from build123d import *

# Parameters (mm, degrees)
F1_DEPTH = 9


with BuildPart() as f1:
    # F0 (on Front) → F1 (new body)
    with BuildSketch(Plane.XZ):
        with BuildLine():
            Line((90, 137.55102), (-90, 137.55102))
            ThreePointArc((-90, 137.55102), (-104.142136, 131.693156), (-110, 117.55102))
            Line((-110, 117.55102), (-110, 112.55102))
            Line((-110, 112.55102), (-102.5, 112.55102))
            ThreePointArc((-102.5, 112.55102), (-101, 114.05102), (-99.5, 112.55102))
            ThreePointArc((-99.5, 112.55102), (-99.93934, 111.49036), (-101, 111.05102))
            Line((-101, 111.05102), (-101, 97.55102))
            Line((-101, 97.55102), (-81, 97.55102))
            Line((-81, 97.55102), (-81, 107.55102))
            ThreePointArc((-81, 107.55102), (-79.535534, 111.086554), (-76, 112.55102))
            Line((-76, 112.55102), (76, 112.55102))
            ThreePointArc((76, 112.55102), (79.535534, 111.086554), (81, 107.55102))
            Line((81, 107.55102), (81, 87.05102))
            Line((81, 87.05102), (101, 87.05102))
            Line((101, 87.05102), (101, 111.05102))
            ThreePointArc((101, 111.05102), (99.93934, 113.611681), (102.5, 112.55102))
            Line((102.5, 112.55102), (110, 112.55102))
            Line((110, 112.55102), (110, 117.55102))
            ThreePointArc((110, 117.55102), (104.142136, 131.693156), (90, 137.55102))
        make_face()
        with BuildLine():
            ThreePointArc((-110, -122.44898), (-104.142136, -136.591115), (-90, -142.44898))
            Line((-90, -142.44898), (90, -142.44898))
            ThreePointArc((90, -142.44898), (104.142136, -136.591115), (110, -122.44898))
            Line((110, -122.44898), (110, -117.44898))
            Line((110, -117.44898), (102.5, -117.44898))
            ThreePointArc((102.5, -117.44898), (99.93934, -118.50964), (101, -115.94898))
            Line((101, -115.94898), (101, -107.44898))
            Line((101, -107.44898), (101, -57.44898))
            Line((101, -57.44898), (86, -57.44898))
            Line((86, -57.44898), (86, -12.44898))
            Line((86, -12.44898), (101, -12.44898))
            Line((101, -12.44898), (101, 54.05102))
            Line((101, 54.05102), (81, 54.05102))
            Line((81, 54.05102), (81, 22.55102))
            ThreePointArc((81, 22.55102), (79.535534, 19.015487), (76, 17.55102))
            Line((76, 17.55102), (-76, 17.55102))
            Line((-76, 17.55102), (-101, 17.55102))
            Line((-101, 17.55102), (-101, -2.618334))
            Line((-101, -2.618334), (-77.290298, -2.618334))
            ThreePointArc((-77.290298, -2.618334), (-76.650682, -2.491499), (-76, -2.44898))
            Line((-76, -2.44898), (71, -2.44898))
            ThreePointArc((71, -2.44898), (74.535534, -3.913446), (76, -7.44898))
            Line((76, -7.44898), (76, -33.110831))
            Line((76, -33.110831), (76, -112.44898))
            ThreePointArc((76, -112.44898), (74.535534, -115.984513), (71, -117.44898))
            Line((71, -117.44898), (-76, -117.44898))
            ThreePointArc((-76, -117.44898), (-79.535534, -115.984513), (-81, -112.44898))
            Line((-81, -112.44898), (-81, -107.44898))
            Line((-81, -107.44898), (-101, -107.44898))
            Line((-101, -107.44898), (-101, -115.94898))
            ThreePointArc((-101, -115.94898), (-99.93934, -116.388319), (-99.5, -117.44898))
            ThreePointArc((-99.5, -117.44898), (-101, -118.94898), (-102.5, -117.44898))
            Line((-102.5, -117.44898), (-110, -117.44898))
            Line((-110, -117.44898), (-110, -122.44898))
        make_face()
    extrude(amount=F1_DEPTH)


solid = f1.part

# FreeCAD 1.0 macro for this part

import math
import FreeCAD as App
import Part
import Sketcher
from FreeCAD import Vector
Q = App.Units.Quantity

doc = App.newDocument("Part")
body = doc.addObject("PartDesign::Body", "Body")
body.AllowCompound = True

sketch1 = doc.addObject("Sketcher::SketchObject", "Sketch")
body.addObject(sketch1)
sketch1.AttachmentSupport = (doc.XZ_Plane, [""])
sketch1.MapMode = "FlatFace"
sketch1.addGeometry([
    Part.LineSegment(Vector(90, 137.6, 0), Vector(-90, 137.6, 0)),
    Part.ArcOfCircle(Part.Circle(Vector(-90, 117.6, 0), Vector(0, 0, 1), 20), math.radians(90), math.radians(180)),
    Part.LineSegment(Vector(-110, 117.6, 0), Vector(-110, 112.6, 0)),
    Part.LineSegment(Vector(-110, 112.6, 0), Vector(-102.5, 112.6, 0)),
    Part.ArcOfCircle(Part.Circle(Vector(-101, 112.6, 0), Vector(0, 0, 1), 1.5), math.radians(0), math.radians(180)),
    Part.ArcOfCircle(Part.Circle(Vector(-101, 112.6, 0), Vector(0, 0, 1), 1.5), math.radians(-90), math.radians(0)),
    Part.LineSegment(Vector(-101, 111.1, 0), Vector(-101, 97.6, 0)),
    Part.LineSegment(Vector(-101, 97.6, 0), Vector(-81, 97.6, 0)),
    Part.LineSegment(Vector(-81, 97.6, 0), Vector(-81, 107.6, 0)),
    Part.ArcOfCircle(Part.Circle(Vector(-76, 107.6, 0), Vector(0, 0, 1), 5), math.radians(90), math.radians(180)),
    Part.LineSegment(Vector(-76, 112.6, 0), Vector(76, 112.6, 0)),
    Part.ArcOfCircle(Part.Circle(Vector(76, 107.6, 0), Vector(0, 0, 1), 5), math.radians(0), math.radians(90)),
    Part.LineSegment(Vector(81, 107.6, 0), Vector(81, 87.1, 0)),
    Part.LineSegment(Vector(81, 87.1, 0), Vector(101, 87.1, 0)),
    Part.LineSegment(Vector(101, 87.1, 0), Vector(101, 111.1, 0)),
    Part.ArcOfCircle(Part.Circle(Vector(101, 112.6, 0), Vector(0, 0, 1), 1.5), math.radians(0), math.radians(270)),
    Part.LineSegment(Vector(102.5, 112.6, 0), Vector(110, 112.6, 0)),
    Part.LineSegment(Vector(110, 112.6, 0), Vector(110, 117.6, 0)),
    Part.ArcOfCircle(Part.Circle(Vector(90, 117.6, 0), Vector(0, 0, 1), 20), math.radians(0), math.radians(90)),
    Part.ArcOfCircle(Part.Circle(Vector(-90, -122.4, 0), Vector(0, 0, 1), 20), math.radians(-180), math.radians(-90)),
    Part.LineSegment(Vector(-90, -142.4, 0), Vector(90, -142.4, 0)),
    Part.ArcOfCircle(Part.Circle(Vector(90, -122.4, 0), Vector(0, 0, 1), 20), math.radians(-90), math.radians(0)),
    Part.LineSegment(Vector(110, -122.4, 0), Vector(110, -117.4, 0)),
    Part.LineSegment(Vector(110, -117.4, 0), Vector(102.5, -117.4, 0)),
    Part.ArcOfCircle(Part.Circle(Vector(101, -117.4, 0), Vector(0, 0, 1), 1.5), math.radians(90), math.radians(360)),
    Part.LineSegment(Vector(101, -115.9, 0), Vector(101, -57.4, 0)),
    Part.LineSegment(Vector(101, -57.4, 0), Vector(86, -57.4, 0)),
    Part.LineSegment(Vector(86, -57.4, 0), Vector(86, -12.4, 0)),
    Part.LineSegment(Vector(86, -12.4, 0), Vector(101, -12.4, 0)),
    Part.LineSegment(Vector(101, -12.4, 0), Vector(101, 54.1, 0)),
    Part.LineSegment(Vector(101, 54.1, 0), Vector(81, 54.1, 0)),
    Part.LineSegment(Vector(81, 54.1, 0), Vector(81, 22.6, 0)),
    Part.ArcOfCircle(Part.Circle(Vector(76, 22.6, 0), Vector(0, 0, 1), 5), math.radians(-90), math.radians(0)),
    Part.LineSegment(Vector(76, 17.6, 0), Vector(-101, 17.6, 0)),
    Part.LineSegment(Vector(-101, 17.6, 0), Vector(-101, -2.6, 0)),
    Part.LineSegment(Vector(-101, -2.6, 0), Vector(-77.3, -2.6, 0)),
    Part.ArcOfCircle(Part.Circle(Vector(-76, -7.4, 0), Vector(0, 0, 1), 5), math.radians(90), math.radians(104.95)),
    Part.LineSegment(Vector(-76, -2.4, 0), Vector(71, -2.4, 0)),
    Part.ArcOfCircle(Part.Circle(Vector(71, -7.4, 0), Vector(0, 0, 1), 5), math.radians(0), math.radians(90)),
    Part.LineSegment(Vector(76, -7.4, 0), Vector(76, -112.4, 0)),
    Part.ArcOfCircle(Part.Circle(Vector(71, -112.4, 0), Vector(0, 0, 1), 5), math.radians(-90), math.radians(0)),
    Part.LineSegment(Vector(71, -117.4, 0), Vector(-76, -117.4, 0)),
    Part.ArcOfCircle(Part.Circle(Vector(-76, -112.4, 0), Vector(0, 0, 1), 5), math.radians(-180), math.radians(-90)),
    Part.LineSegment(Vector(-81, -112.4, 0), Vector(-81, -107.4, 0)),
    Part.LineSegment(Vector(-81, -107.4, 0), Vector(-101, -107.4, 0)),
    Part.LineSegment(Vector(-101, -107.4, 0), Vector(-101, -115.9, 0)),
    Part.ArcOfCircle(Part.Circle(Vector(-101, -117.4, 0), Vector(0, 0, 1), 1.5), math.radians(0), math.radians(90)),
    Part.ArcOfCircle(Part.Circle(Vector(-101, -117.4, 0), Vector(0, 0, 1), 1.5), math.radians(180), math.radians(360)),
    Part.LineSegment(Vector(-102.5, -117.4, 0), Vector(-110, -117.4, 0)),
    Part.LineSegment(Vector(-110, -117.4, 0), Vector(-110, -122.4, 0)),
], False)
sketch1.addConstraint([
    Sketcher.Constraint("Tangent", 0, 2, 1, 1),
    Sketcher.Constraint("Tangent", 1, 2, 2, 1),
    Sketcher.Constraint("Coincident", 2, 2, 3, 1),
    Sketcher.Constraint("Coincident", 3, 2, 4, 2),
    Sketcher.Constraint("Tangent", 4, 1, 5, 2),
    Sketcher.Constraint("Coincident", 5, 1, 6, 1),
    Sketcher.Constraint("Coincident", 6, 2, 7, 1),
    Sketcher.Constraint("Coincident", 7, 2, 8, 1),
    Sketcher.Constraint("Tangent", 8, 2, 9, 2),
    Sketcher.Constraint("Tangent", 9, 1, 10, 1),
    Sketcher.Constraint("Tangent", 10, 2, 11, 2),
    Sketcher.Constraint("Tangent", 11, 1, 12, 1),
    Sketcher.Constraint("Coincident", 12, 2, 13, 1),
    Sketcher.Constraint("Coincident", 13, 2, 14, 1),
    Sketcher.Constraint("Coincident", 14, 2, 15, 2),
    Sketcher.Constraint("Coincident", 15, 1, 16, 1),
    Sketcher.Constraint("Coincident", 16, 2, 17, 1),
    Sketcher.Constraint("Tangent", 17, 2, 18, 1),
    Sketcher.Constraint("Tangent", 18, 2, 0, 1),
    Sketcher.Constraint("Tangent", 19, 2, 20, 1),
    Sketcher.Constraint("Tangent", 20, 2, 21, 1),
    Sketcher.Constraint("Tangent", 21, 2, 22, 1),
    Sketcher.Constraint("Coincident", 22, 2, 23, 1),
    Sketcher.Constraint("Coincident", 23, 2, 24, 2),
    Sketcher.Constraint("Coincident", 24, 1, 25, 1),
    Sketcher.Constraint("Coincident", 25, 2, 26, 1),
    Sketcher.Constraint("Coincident", 26, 2, 27, 1),
    Sketcher.Constraint("Coincident", 27, 2, 28, 1),
    Sketcher.Constraint("Coincident", 28, 2, 29, 1),
    Sketcher.Constraint("Coincident", 29, 2, 30, 1),
    Sketcher.Constraint("Coincident", 30, 2, 31, 1),
    Sketcher.Constraint("Tangent", 31, 2, 32, 2),
    Sketcher.Constraint("Tangent", 32, 1, 33, 1),
    Sketcher.Constraint("Coincident", 33, 2, 34, 1),
    Sketcher.Constraint("Coincident", 34, 2, 35, 1),
    Sketcher.Constraint("Coincident", 35, 2, 36, 2),
    Sketcher.Constraint("Tangent", 36, 1, 37, 1),
    Sketcher.Constraint("Tangent", 37, 2, 38, 2),
    Sketcher.Constraint("Tangent", 38, 1, 39, 1),
    Sketcher.Constraint("Tangent", 39, 2, 40, 2),
    Sketcher.Constraint("Tangent", 40, 1, 41, 1),
    Sketcher.Constraint("Tangent", 41, 2, 42, 2),
    Sketcher.Constraint("Tangent", 42, 1, 43, 1),
    Sketcher.Constraint("Coincident", 43, 2, 44, 1),
    Sketcher.Constraint("Coincident", 44, 2, 45, 1),
    Sketcher.Constraint("Coincident", 45, 2, 46, 2),
    Sketcher.Constraint("Tangent", 46, 1, 47, 2),
    Sketcher.Constraint("Coincident", 47, 1, 48, 1),
    Sketcher.Constraint("Coincident", 48, 2, 49, 1),
    Sketcher.Constraint("Tangent", 49, 2, 19, 1),
    Sketcher.Constraint("Horizontal", 0),
    Sketcher.Constraint("Vertical", 2),
    Sketcher.Constraint("Horizontal", 3),
    Sketcher.Constraint("Vertical", 6),
    Sketcher.Constraint("Horizontal", 7),
    Sketcher.Constraint("Vertical", 8),
    Sketcher.Constraint("Horizontal", 10),
    Sketcher.Constraint("Vertical", 12),
    Sketcher.Constraint("Horizontal", 13),
    Sketcher.Constraint("Vertical", 14),
    Sketcher.Constraint("Horizontal", 16),
    Sketcher.Constraint("Vertical", 17),
    Sketcher.Constraint("Horizontal", 20),
    Sketcher.Constraint("Vertical", 22),
    Sketcher.Constraint("Horizontal", 23),
    Sketcher.Constraint("Vertical", 25),
    Sketcher.Constraint("Horizontal", 26),
    Sketcher.Constraint("Vertical", 27),
    Sketcher.Constraint("Horizontal", 28),
    Sketcher.Constraint("Vertical", 29),
    Sketcher.Constraint("Horizontal", 30),
    Sketcher.Constraint("Vertical", 31),
    Sketcher.Constraint("Horizontal", 33),
    Sketcher.Constraint("Vertical", 34),
    Sketcher.Constraint("Horizontal", 35),
    Sketcher.Constraint("Horizontal", 37),
    Sketcher.Constraint("Vertical", 39),
    Sketcher.Constraint("Horizontal", 41),
    Sketcher.Constraint("Vertical", 43),
    Sketcher.Constraint("Horizontal", 44),
    Sketcher.Constraint("Vertical", 45),
    Sketcher.Constraint("Horizontal", 48),
    Sketcher.Constraint("Vertical", 49),
    Sketcher.Constraint("Equal", 4, 5),
    Sketcher.Constraint("Equal", 9, 11),
    Sketcher.Constraint("Equal", 5, 15),
    Sketcher.Constraint("Equal", 1, 18),
    Sketcher.Constraint("Equal", 18, 19),
    Sketcher.Constraint("Equal", 19, 21),
    Sketcher.Constraint("Equal", 15, 24),
    Sketcher.Constraint("Equal", 11, 32),
    Sketcher.Constraint("Equal", 32, 36),
    Sketcher.Constraint("Equal", 36, 38),
    Sketcher.Constraint("Equal", 38, 40),
    Sketcher.Constraint("Equal", 40, 42),
    Sketcher.Constraint("Equal", 24, 46),
    Sketcher.Constraint("Equal", 46, 47),
    Sketcher.Constraint("Symmetric", 4, 3, 15, 3, -2),
    Sketcher.Constraint("Symmetric", 24, 3, 46, 3, -2),
    Sketcher.Constraint("Symmetric", 2, 2, 16, 2, -2),
    Sketcher.Constraint("Symmetric", 22, 2, 48, 2, -2),
    Sketcher.Constraint("Horizontal", 15, 3, 2, 2),
    Sketcher.Constraint("Horizontal", 3, 2, 4, 1),
    Sketcher.Constraint("Horizontal", 4, 1, 9, 1),
    Sketcher.Constraint("Horizontal", 47, 3, 22, 2),
    Sketcher.Constraint("Horizontal", 23, 2, 40, 1),
    Sketcher.Constraint("Horizontal", 41, 2, 46, 1),
    Sketcher.Constraint("Vertical", 1, 3, 19, 3),
    Sketcher.Constraint("Vertical", 15, 3, 24, 3),
    Sketcher.Constraint("Vertical", 11, 3, 32, 3),
    Sketcher.Constraint("Vertical", 9, 3, 42, 3),
    Sketcher.Constraint("Vertical", 47, 3, 5, 1),
    Sketcher.Constraint("Vertical", 24, 3, 13, 2),
    Sketcher.Constraint("Vertical", 14, 2, 24, 1),
    Sketcher.Constraint("Vertical", 25, 2, 28, 2),
    Sketcher.Constraint("Vertical", 6, 2, 33, 2),
    Sketcher.Constraint("Vertical", 9, 1, 36, 1),
    Sketcher.Constraint("Vertical", 32, 1, 38, 1),
    Sketcher.Constraint("Vertical", 34, 2, 44, 2),
    Sketcher.Constraint("Equal", 7, 13),
    Sketcher.Constraint("Equal", 17, 22),
    Sketcher.Constraint("Equal", 22, 43),
    Sketcher.Constraint("Radius", 1, Q("19.999999 mm")),
    Sketcher.Constraint("Radius", 9, Q("5 mm")),
    Sketcher.Constraint("Radius", 4, Q("1.5 mm")),
    Sketcher.Constraint("DistanceX", 0, 2, 0, 1, Q("180 mm")),
    Sketcher.Constraint("DistanceX", 7, 1, 7, 2, Q("20 mm")),
    Sketcher.Constraint("DistanceX", 10, 1, 10, 2, Q("152 mm")),
    Sketcher.Constraint("DistanceX", 26, 2, 26, 1, Q("15 mm")),
    Sketcher.Constraint("DistanceY", 2, 2, 2, 1, Q("5 mm")),
    Sketcher.Constraint("DistanceY", 8, 1, 8, 2, Q("10 mm")),
    Sketcher.Constraint("DistanceY", 14, 1, 14, 2, Q("24 mm")),
    Sketcher.Constraint("DistanceY", 27, 1, 27, 2, Q("45 mm")),
    Sketcher.Constraint("DistanceY", 39, 2, 39, 1, Q("105 mm")),
    Sketcher.Constraint("DistanceY", 25, 1, 25, 2, Q("58.5 mm")),
    Sketcher.Constraint("DistanceY", 29, 1, 29, 2, Q("66.5 mm")),
    Sketcher.Constraint("DistanceY", 31, 2, 31, 1, Q("31.5 mm")),
    Sketcher.Constraint("DistanceX", 35, 1, 35, 2, Q("23.709702 mm")),
    Sketcher.Constraint("DistanceY", -1, 1, 1, 3, Q("117.551021 mm")),
    Sketcher.Constraint("DistanceY", 19, 3, -1, 1, Q("122.44898 mm")),
])
pad1 = doc.addObject("PartDesign::Pad", "Pad")
body.addObject(pad1)
pad1.Profile = sketch1
pad1.Length = 9

doc.recompute()
